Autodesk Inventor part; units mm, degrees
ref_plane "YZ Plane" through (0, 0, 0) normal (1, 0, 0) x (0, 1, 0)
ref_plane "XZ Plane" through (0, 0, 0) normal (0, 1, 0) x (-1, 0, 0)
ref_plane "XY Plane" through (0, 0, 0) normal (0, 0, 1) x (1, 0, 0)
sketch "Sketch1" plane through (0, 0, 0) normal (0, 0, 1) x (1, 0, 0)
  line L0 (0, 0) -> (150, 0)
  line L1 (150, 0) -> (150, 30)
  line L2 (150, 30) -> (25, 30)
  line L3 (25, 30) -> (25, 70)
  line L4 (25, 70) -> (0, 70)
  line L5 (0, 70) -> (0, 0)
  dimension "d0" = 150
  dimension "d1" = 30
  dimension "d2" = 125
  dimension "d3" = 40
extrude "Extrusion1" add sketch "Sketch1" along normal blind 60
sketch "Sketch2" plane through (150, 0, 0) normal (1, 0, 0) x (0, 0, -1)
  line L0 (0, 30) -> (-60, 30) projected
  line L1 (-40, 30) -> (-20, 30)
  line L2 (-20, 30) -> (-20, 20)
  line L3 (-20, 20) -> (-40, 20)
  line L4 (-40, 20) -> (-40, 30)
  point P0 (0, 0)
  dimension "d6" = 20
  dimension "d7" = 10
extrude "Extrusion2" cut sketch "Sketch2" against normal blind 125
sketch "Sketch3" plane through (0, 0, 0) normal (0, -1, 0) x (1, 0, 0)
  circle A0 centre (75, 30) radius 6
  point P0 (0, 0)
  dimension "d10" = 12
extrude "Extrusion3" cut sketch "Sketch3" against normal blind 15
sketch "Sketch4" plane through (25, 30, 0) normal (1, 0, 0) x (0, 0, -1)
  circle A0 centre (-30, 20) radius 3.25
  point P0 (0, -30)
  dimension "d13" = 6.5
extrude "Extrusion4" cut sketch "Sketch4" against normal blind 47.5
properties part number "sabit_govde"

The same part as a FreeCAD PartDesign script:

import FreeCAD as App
import Part
import Sketcher

V = App.Vector


def add_polygon(sketch, points):
    """Adds a closed chain of lines whose ends are joined by coincident constraints."""
    first, n = sketch.GeometryCount, len(points)
    for a, b in zip(points, points[1:] + points[:1]):
        sketch.addGeometry(Part.LineSegment(App.Vector(*a, 0), App.Vector(*b, 0)), False)
    for i in range(n):
        sketch.addConstraint(Sketcher.Constraint("Coincident", first + i, 2, first + (i + 1) % n, 1))

doc = App.newDocument("Part")
body = doc.addObject("PartDesign::Body", "Body")

sketch1 = doc.addObject("Sketcher::SketchObject", "Sketch")
body.addObject(sketch1)
sketch1.AttachmentSupport = (doc.XY_Plane, [""])
sketch1.MapMode = "FlatFace"
add_polygon(sketch1, [(0, 70), (0, 0), (150, 0), (150, 30), (25, 30), (25, 70)])
sketch1.addConstraint(Sketcher.Constraint("Vertical", 0))
sketch1.addConstraint(Sketcher.Constraint("Horizontal", 1))
sketch1.addConstraint(Sketcher.Constraint("Vertical", 2))
sketch1.addConstraint(Sketcher.Constraint("Horizontal", 3))
sketch1.addConstraint(Sketcher.Constraint("Vertical", 4))
sketch1.addConstraint(Sketcher.Constraint("Horizontal", 5))
sketch1.addConstraint(Sketcher.Constraint("Coincident", 0, 2, -1, 1))
sketch1.addConstraint(Sketcher.Constraint("DistanceX", 1, 1, 1, 2, 150.0))
sketch1.addConstraint(Sketcher.Constraint("DistanceX", 3, 2, 3, 1, 125.0))
sketch1.addConstraint(Sketcher.Constraint("DistanceY", 2, 1, 2, 2, 30.0))
sketch1.addConstraint(Sketcher.Constraint("DistanceY", 4, 1, 4, 2, 40.0))
pad1 = doc.addObject("PartDesign::Pad", "Pad")
body.addObject(pad1)
pad1.Profile = sketch1
pad1.Length = 60

sketch2 = doc.addObject("Sketcher::SketchObject", "Sketch001")
body.addObject(sketch2)
sketch2.AttachmentSupport = (doc.YZ_Plane, [""])
sketch2.MapMode = "FlatFace"
sketch2.AttachmentOffset = App.Placement(V(0, 0, 150), App.Rotation())
add_polygon(sketch2, [(20, 20), (30, 20), (30, 40), (20, 40)])
sketch2.addConstraint(Sketcher.Constraint("Horizontal", 0))
sketch2.addConstraint(Sketcher.Constraint("Vertical", 1))
sketch2.addConstraint(Sketcher.Constraint("Horizontal", 2))
sketch2.addConstraint(Sketcher.Constraint("Vertical", 3))
sketch2.addConstraint(Sketcher.Constraint("DistanceX", 0, 1, 0, 2, 10.0))
sketch2.addConstraint(Sketcher.Constraint("DistanceY", 1, 1, 1, 2, 20.0))
sketch2.addConstraint(Sketcher.Constraint("DistanceY", -1, 1, 0, 2, 20.0))
sketch2.addConstraint(Sketcher.Constraint("DistanceX", -1, 1, 2, 2, 20.0))
pocket1 = doc.addObject("PartDesign::Pocket", "Pocket")
body.addObject(pocket1)
pocket1.Profile = sketch2
pocket1.Length = 125

sketch3 = doc.addObject("Sketcher::SketchObject", "Sketch002")
body.addObject(sketch3)
sketch3.AttachmentSupport = (doc.XZ_Plane, [""])
sketch3.MapMode = "FlatFace"
sketch3.addGeometry(Part.Circle(V(75, 30, 0), V(0, 0, 1), 6), False)
sketch3.addConstraint(Sketcher.Constraint("Diameter", 0, 12.0))
sketch3.addConstraint(Sketcher.Constraint("DistanceX", -1, 1, 0, 3, 75.0))
sketch3.addConstraint(Sketcher.Constraint("DistanceY", -1, 1, 0, 3, 30.0))
pocket2 = doc.addObject("PartDesign::Pocket", "Pocket001")
body.addObject(pocket2)
pocket2.Profile = sketch3
pocket2.Length = 15

sketch4 = doc.addObject("Sketcher::SketchObject", "Sketch003")
body.addObject(sketch4)
sketch4.AttachmentSupport = (doc.YZ_Plane, [""])
sketch4.MapMode = "FlatFace"
sketch4.AttachmentOffset = App.Placement(V(0, 0, 25), App.Rotation())
sketch4.addGeometry(Part.Circle(V(50, 30, 0), V(0, 0, 1), 3.2), False)
sketch4.addConstraint(Sketcher.Constraint("Diameter", 0, 6.5))
sketch4.addConstraint(Sketcher.Constraint("DistanceX", -1, 1, 0, 3, 50.0))
sketch4.addConstraint(Sketcher.Constraint("DistanceY", -1, 1, 0, 3, 30.0))
pocket3 = doc.addObject("PartDesign::Pocket", "Pocket002")
body.addObject(pocket3)
pocket3.Profile = sketch4
pocket3.Length = 47.5

doc.recompute()
